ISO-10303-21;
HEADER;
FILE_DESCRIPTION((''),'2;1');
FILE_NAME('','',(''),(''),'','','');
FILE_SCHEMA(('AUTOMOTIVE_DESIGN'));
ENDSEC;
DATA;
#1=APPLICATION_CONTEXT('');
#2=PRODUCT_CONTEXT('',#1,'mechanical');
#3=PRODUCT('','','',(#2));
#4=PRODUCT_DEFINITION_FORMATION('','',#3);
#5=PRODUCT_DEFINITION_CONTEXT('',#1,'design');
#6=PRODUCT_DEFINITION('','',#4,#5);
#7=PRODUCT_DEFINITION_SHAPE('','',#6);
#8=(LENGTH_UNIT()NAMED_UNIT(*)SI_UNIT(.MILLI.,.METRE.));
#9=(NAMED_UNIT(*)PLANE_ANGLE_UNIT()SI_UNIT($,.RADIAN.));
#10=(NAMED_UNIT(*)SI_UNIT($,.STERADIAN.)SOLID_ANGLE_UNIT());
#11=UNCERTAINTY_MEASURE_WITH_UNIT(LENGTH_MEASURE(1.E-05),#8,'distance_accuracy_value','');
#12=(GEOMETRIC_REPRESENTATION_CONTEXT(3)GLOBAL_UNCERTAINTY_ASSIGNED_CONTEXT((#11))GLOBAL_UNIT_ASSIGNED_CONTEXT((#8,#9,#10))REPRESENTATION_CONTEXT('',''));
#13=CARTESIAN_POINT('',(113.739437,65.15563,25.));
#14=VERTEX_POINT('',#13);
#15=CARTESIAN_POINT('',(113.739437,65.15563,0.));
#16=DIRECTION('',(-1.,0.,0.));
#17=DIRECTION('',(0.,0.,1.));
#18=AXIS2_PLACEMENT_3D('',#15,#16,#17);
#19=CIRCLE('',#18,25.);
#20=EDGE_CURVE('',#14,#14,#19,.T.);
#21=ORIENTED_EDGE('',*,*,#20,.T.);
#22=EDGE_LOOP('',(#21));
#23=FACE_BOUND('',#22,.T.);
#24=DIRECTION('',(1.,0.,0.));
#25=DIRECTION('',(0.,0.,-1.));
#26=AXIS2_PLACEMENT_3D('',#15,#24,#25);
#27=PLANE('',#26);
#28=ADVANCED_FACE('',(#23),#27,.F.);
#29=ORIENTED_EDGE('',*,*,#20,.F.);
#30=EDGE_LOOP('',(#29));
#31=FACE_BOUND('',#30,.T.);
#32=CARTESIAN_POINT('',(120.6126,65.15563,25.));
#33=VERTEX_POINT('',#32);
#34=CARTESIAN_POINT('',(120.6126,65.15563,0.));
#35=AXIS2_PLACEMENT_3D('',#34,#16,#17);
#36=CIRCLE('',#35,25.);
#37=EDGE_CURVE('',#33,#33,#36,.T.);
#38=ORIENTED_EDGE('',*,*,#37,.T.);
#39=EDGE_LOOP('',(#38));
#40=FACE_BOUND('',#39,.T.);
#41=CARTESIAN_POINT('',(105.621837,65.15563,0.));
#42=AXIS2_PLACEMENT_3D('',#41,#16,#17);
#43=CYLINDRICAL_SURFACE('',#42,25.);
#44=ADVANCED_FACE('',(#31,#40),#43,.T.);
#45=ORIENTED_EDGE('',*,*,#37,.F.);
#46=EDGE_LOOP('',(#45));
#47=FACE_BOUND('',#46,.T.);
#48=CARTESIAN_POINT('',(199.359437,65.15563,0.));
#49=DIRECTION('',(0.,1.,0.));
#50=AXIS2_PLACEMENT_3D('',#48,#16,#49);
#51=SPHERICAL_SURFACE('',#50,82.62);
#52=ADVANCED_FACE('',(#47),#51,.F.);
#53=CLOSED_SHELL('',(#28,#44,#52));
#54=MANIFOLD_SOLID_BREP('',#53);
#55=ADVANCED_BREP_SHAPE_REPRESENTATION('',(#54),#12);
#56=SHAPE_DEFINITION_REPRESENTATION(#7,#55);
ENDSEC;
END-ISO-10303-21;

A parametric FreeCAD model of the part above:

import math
import FreeCAD as App
import Part
import Sketcher
from FreeCAD import Vector

doc = App.newDocument("Part")
params = doc.addObject("Spreadsheet::Sheet", "Params")
for row, (alias, value) in enumerate([
    ("sketch1_width", "3 mm"),
    ("sketch1_height", "25 mm"),
    ("sketch1_radius", "82.62 mm"),
    ("revolution_angle", "360 deg"),
], start=1):
    params.set(f"A{row}", alias)
    params.set(f"B{row}", "=" + value)
    params.setAlias(f"B{row}", alias)

body = doc.addObject("PartDesign::Body", "Body")

sketch1 = doc.addObject("Sketcher::SketchObject", "Sketch")
body.addObject(sketch1)
sketch1.AttachmentSupport = (doc.XY_Plane, [""])
sketch1.MapMode = "FlatFace"
sketch1.addGeometry([
    Part.LineSegment(Vector(113.739437, 90.15563, 0), Vector(113.739437, 65.15563, 0)),
    Part.LineSegment(Vector(113.739437, 65.15563, 0), Vector(116.739437, 65.15563, 0)),
    Part.ArcOfCircle(Part.Circle(Vector(199.359437, 65.15563, 0), Vector(0, 0, 1), 82.62), math.radians(162.386759), math.radians(180)),
    Part.LineSegment(Vector(120.6126, 90.15563, 0), Vector(113.739437, 90.15563, 0)),
], False)
sketch1.addGeometry(Part.LineSegment(Vector(113.739437, 65.15563, 0), Vector(199.359437, 65.15563, 0)), True)
sketch1.addConstraint([
    Sketcher.Constraint("Coincident", 0, 2, 1, 1),
    Sketcher.Constraint("Coincident", 1, 2, 2, 2),
    Sketcher.Constraint("Coincident", 2, 1, 3, 1),
    Sketcher.Constraint("Coincident", 3, 2, 0, 1),
    Sketcher.Constraint("Vertical", 0),
    Sketcher.Constraint("Horizontal", 1),
    Sketcher.Constraint("Horizontal", 3),
    Sketcher.Constraint("Horizontal", 4),
    Sketcher.Constraint("Coincident", 4, 1, 0, 2),
    Sketcher.Constraint("Coincident", 4, 2, 2, 3),
    Sketcher.Constraint("DistanceX", 1, 1, 1, 2, 3.0),
    Sketcher.Constraint("DistanceY", 0, 2, 0, 1, 25.0),
    Sketcher.Constraint("Radius", 2, 82.62),
    Sketcher.Constraint("DistanceX", -1, 1, 2, 1, 120.6126),
    Sketcher.Constraint("DistanceY", -1, 1, 2, 3, 65.15563),
])
sketch1.setExpression("Constraints[10]", "Params.sketch1_width")
sketch1.setExpression("Constraints[11]", "Params.sketch1_height")
sketch1.setExpression("Constraints[12]", "Params.sketch1_radius")
revolution = doc.addObject("PartDesign::Revolution", "Revolution")
body.addObject(revolution)
revolution.Profile = sketch1
revolution.ReferenceAxis = (sketch1, ["Axis0"])
revolution.setExpression("Angle", "Params.revolution_angle")

doc.recompute()
